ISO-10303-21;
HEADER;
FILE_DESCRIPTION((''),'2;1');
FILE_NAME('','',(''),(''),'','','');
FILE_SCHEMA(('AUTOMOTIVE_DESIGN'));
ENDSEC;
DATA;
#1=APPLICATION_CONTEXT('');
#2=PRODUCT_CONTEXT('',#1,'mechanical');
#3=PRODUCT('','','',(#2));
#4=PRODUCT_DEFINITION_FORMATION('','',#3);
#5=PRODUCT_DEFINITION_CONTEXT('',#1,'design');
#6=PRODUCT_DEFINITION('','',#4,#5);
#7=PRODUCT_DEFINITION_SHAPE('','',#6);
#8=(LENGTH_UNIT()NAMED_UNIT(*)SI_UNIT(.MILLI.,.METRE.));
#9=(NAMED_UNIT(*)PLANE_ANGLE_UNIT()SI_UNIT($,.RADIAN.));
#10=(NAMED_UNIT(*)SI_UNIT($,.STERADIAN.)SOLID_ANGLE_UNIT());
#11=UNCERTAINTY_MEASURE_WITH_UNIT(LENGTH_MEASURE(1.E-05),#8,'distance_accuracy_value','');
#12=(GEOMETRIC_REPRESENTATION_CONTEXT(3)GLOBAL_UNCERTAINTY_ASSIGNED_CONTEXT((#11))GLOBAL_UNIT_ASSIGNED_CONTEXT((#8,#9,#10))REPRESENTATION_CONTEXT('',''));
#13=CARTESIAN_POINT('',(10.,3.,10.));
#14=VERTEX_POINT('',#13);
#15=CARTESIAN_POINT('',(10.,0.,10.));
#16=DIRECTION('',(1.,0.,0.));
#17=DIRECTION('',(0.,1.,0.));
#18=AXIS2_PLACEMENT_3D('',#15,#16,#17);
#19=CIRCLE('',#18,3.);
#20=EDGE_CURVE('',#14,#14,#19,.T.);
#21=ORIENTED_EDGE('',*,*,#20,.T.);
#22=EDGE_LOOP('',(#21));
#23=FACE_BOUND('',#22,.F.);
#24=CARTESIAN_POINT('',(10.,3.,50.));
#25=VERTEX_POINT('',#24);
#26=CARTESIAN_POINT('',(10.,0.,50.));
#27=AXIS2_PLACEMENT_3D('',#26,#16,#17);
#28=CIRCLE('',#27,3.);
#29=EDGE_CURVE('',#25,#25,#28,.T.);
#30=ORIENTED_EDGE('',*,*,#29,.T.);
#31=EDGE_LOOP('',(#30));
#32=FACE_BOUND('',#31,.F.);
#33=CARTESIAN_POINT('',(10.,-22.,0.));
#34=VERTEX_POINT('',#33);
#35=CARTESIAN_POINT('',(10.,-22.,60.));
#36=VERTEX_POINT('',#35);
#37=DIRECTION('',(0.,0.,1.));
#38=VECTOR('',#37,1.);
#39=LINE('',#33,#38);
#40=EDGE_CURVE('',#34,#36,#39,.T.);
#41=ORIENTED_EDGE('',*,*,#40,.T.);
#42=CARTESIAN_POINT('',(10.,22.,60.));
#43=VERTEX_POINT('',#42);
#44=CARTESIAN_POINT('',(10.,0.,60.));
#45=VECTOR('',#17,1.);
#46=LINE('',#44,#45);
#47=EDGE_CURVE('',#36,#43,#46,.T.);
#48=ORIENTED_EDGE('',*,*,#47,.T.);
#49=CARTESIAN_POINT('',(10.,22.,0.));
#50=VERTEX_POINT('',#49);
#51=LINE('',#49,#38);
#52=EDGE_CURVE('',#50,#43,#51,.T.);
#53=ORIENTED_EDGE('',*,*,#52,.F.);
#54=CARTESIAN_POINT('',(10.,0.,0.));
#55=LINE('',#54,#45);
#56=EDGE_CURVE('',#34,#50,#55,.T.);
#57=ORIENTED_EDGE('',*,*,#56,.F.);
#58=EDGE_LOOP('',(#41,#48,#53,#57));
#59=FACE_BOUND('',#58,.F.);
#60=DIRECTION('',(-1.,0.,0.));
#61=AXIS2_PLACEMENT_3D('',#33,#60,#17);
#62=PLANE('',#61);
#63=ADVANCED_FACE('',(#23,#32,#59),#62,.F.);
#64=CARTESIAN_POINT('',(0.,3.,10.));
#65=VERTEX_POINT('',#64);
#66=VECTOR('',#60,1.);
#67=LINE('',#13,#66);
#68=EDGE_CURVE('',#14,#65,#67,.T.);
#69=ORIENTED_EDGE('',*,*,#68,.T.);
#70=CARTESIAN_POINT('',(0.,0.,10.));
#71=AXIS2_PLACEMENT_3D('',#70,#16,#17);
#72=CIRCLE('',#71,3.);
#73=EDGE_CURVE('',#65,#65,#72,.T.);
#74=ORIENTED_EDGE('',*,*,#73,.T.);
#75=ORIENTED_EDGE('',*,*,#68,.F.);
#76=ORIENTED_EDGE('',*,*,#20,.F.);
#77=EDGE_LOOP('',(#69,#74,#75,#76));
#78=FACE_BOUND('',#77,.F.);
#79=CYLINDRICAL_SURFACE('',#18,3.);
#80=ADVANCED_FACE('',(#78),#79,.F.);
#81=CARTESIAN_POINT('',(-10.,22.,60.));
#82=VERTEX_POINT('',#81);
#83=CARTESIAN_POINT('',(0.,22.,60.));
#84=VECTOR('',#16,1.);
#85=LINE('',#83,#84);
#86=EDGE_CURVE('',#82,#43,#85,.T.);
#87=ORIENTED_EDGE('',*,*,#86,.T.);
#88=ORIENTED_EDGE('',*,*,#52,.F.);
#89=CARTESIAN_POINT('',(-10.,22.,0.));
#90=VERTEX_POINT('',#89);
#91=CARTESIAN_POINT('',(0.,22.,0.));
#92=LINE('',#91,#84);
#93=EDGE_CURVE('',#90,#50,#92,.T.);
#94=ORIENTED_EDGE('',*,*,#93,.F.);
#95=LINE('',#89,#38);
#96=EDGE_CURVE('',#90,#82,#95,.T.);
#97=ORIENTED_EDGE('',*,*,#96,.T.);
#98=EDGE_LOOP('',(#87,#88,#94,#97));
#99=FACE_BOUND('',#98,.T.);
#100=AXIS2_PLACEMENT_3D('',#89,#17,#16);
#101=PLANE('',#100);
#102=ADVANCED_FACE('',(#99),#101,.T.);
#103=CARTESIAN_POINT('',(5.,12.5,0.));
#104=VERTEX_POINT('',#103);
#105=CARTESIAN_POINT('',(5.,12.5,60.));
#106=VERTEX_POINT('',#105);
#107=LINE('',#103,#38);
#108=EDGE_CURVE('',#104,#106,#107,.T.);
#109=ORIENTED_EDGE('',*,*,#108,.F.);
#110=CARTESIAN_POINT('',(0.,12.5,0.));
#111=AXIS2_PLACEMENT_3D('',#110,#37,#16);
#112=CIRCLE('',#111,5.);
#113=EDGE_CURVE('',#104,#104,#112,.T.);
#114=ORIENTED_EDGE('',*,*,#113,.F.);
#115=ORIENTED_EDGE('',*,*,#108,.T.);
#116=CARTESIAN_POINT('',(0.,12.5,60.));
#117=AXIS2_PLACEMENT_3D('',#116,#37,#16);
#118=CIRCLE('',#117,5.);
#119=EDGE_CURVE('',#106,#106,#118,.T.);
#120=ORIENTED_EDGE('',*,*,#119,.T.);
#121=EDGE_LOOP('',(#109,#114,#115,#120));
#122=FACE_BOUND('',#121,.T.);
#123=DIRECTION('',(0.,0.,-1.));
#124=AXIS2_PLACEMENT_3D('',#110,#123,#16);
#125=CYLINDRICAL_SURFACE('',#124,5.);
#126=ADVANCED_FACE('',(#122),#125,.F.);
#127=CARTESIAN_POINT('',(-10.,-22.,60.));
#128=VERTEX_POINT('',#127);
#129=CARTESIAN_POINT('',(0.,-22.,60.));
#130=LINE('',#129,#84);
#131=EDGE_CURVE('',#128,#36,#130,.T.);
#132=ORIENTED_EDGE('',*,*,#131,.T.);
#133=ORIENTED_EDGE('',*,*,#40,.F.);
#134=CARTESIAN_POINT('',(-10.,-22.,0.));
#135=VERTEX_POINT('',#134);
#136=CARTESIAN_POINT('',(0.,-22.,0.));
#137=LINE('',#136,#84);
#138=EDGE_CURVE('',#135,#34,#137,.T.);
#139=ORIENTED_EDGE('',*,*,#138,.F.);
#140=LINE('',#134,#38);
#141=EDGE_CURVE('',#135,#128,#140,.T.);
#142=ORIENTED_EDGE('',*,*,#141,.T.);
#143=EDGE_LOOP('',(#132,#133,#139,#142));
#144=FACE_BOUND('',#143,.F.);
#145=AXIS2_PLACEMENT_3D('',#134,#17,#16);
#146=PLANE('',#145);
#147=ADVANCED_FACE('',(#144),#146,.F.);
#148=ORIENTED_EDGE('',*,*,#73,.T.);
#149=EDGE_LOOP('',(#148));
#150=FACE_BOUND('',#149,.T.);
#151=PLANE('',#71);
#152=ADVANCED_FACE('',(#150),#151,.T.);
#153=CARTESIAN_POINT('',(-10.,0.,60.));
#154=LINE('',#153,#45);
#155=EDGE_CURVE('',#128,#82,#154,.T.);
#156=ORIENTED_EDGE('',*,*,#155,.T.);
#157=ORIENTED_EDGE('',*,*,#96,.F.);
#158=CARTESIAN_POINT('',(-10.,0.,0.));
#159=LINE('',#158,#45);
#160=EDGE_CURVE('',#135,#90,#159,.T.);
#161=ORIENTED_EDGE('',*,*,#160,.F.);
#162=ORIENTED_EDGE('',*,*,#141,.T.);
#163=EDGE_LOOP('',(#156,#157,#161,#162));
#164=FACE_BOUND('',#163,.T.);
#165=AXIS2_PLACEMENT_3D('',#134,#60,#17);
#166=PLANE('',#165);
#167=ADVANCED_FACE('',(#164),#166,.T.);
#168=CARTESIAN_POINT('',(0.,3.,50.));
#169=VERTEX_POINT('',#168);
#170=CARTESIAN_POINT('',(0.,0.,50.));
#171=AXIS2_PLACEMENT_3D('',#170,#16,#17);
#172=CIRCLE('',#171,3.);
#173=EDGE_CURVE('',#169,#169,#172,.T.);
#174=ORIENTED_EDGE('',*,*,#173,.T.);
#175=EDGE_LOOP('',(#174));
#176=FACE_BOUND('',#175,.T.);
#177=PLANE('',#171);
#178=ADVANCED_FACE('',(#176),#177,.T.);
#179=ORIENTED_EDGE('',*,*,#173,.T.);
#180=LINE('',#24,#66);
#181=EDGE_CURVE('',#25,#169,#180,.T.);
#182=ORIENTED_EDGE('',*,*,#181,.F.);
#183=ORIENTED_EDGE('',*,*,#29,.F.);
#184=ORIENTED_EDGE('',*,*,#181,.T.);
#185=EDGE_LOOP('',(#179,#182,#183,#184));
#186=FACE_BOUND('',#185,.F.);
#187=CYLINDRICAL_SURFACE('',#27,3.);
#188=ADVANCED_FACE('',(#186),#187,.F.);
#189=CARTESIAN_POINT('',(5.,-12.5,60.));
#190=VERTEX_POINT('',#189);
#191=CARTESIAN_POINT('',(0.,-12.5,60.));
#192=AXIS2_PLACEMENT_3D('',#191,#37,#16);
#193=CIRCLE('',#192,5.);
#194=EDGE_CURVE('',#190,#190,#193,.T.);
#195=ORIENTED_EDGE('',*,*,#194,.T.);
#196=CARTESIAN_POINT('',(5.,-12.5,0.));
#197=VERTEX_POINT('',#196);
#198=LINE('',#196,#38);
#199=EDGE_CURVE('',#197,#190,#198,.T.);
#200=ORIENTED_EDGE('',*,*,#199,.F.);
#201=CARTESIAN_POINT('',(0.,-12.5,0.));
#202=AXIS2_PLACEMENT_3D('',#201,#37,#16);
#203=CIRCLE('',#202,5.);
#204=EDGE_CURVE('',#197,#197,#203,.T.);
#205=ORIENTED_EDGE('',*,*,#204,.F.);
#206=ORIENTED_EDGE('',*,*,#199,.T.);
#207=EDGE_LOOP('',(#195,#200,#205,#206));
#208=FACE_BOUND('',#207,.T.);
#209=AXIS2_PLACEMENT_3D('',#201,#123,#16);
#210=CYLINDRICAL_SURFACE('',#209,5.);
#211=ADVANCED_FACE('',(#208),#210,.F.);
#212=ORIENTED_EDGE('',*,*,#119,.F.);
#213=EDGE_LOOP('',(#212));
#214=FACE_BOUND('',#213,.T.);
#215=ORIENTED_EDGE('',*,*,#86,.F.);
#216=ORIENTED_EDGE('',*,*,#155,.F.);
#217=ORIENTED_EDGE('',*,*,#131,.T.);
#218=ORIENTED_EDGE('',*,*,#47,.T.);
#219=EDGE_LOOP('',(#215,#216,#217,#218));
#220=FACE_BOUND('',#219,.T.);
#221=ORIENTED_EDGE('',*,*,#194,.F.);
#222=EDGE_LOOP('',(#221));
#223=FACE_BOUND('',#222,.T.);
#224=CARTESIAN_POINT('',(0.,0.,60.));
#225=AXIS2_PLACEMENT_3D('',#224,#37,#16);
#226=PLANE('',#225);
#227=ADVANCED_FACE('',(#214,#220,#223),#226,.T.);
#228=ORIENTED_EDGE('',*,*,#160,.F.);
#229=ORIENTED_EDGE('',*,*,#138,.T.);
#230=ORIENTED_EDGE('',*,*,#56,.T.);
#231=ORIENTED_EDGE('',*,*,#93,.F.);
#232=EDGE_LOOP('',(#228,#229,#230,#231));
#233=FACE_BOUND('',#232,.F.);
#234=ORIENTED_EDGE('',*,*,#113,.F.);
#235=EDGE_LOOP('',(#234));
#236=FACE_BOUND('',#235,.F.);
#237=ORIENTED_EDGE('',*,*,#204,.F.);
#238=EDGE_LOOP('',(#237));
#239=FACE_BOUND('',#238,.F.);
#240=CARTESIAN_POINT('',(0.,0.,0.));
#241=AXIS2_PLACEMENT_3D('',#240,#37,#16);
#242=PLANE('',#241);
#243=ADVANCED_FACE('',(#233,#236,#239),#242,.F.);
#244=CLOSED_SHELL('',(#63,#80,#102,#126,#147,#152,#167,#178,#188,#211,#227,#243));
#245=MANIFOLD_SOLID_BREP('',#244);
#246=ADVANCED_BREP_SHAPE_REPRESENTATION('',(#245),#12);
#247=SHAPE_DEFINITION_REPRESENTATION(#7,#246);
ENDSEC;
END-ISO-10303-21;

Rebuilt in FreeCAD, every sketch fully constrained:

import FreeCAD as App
import Part
import Sketcher
from FreeCAD import Vector


def add_polygon(sketch, points):
    """Adds a closed chain of lines whose ends are joined by coincident constraints."""
    first, n = sketch.GeometryCount, len(points)
    for a, b in zip(points, points[1:] + points[:1]):
        sketch.addGeometry(Part.LineSegment(App.Vector(*a, 0), App.Vector(*b, 0)), False)
    for i in range(n):
        sketch.addConstraint(Sketcher.Constraint("Coincident", first + i, 2, first + (i + 1) % n, 1))

doc = App.newDocument("Part")
body = doc.addObject("PartDesign::Body", "Body")

sketch1 = body.newObject("Sketcher::SketchObject", "Sketch")
sketch1.AttachmentSupport = (doc.getObject("XY_Plane"), [""])
sketch1.MapMode = "FlatFace"
add_polygon(sketch1, [(-10, 22), (-10, -22), (10, -22), (10, 22)])
sketch1.addGeometry(Part.Circle(Vector(0, -12, 0), Vector(0, 0, 1), 5), False)
sketch1.addGeometry(Part.Circle(Vector(0, 12, 0), Vector(0, 0, 1), 5), False)
sketch1.addConstraint(Sketcher.Constraint("Vertical", 0))
sketch1.addConstraint(Sketcher.Constraint("Horizontal", 1))
sketch1.addConstraint(Sketcher.Constraint("Vertical", 2))
sketch1.addConstraint(Sketcher.Constraint("Horizontal", 3))
sketch1.addConstraint(Sketcher.Constraint("Equal", 4, 5))
sketch1.addConstraint(Sketcher.Constraint("Symmetric", 4, 3, 5, 3, -1, 1))
sketch1.addConstraint(Sketcher.Constraint("Symmetric", 0, 2, 2, 2, -1, 1))
sketch1.addConstraint(Sketcher.Constraint("PointOnObject", 4, 3, -2))
sketch1.addConstraint(Sketcher.Constraint("Diameter", 4, 10.0))
sketch1.addConstraint(Sketcher.Constraint("DistanceX", 1, 1, 1, 2, 20.0))
sketch1.addConstraint(Sketcher.Constraint("DistanceY", 0, 2, 0, 1, 44.0))
sketch1.addConstraint(Sketcher.Constraint("DistanceY", 4, 3, 5, 3, 25.0))
pad1 = body.newObject("PartDesign::Pad", "Pad")
pad1.Profile = sketch1
pad1.Length = 60

sketch2 = body.newObject("Sketcher::SketchObject", "Sketch001")
sketch2.AttachmentSupport = (doc.getObject("YZ_Plane"), [""])
sketch2.MapMode = "FlatFace"
sketch2.AttachmentOffset = App.Placement(Vector(0, 0, 10), App.Rotation())
sketch2.addGeometry(Part.Circle(Vector(0, 50, 0), Vector(0, 0, 1), 3), False)
sketch2.addGeometry(Part.Circle(Vector(0, 10, 0), Vector(0, 0, 1), 3), False)
sketch2.addConstraint(Sketcher.Constraint("Equal", 0, 1))
sketch2.addConstraint(Sketcher.Constraint("PointOnObject", 0, 3, -2))
sketch2.addConstraint(Sketcher.Constraint("PointOnObject", 1, 3, -2))
sketch2.addConstraint(Sketcher.Constraint("Diameter", 0, 6.0))
sketch2.addConstraint(Sketcher.Constraint("DistanceY", -1, 1, 0, 3, 50.0))
sketch2.addConstraint(Sketcher.Constraint("DistanceY", -1, 1, 1, 3, 10.0))
pocket1 = body.newObject("PartDesign::Pocket", "Pocket")
pocket1.Profile = sketch2
pocket1.Length = 10

doc.recompute()
